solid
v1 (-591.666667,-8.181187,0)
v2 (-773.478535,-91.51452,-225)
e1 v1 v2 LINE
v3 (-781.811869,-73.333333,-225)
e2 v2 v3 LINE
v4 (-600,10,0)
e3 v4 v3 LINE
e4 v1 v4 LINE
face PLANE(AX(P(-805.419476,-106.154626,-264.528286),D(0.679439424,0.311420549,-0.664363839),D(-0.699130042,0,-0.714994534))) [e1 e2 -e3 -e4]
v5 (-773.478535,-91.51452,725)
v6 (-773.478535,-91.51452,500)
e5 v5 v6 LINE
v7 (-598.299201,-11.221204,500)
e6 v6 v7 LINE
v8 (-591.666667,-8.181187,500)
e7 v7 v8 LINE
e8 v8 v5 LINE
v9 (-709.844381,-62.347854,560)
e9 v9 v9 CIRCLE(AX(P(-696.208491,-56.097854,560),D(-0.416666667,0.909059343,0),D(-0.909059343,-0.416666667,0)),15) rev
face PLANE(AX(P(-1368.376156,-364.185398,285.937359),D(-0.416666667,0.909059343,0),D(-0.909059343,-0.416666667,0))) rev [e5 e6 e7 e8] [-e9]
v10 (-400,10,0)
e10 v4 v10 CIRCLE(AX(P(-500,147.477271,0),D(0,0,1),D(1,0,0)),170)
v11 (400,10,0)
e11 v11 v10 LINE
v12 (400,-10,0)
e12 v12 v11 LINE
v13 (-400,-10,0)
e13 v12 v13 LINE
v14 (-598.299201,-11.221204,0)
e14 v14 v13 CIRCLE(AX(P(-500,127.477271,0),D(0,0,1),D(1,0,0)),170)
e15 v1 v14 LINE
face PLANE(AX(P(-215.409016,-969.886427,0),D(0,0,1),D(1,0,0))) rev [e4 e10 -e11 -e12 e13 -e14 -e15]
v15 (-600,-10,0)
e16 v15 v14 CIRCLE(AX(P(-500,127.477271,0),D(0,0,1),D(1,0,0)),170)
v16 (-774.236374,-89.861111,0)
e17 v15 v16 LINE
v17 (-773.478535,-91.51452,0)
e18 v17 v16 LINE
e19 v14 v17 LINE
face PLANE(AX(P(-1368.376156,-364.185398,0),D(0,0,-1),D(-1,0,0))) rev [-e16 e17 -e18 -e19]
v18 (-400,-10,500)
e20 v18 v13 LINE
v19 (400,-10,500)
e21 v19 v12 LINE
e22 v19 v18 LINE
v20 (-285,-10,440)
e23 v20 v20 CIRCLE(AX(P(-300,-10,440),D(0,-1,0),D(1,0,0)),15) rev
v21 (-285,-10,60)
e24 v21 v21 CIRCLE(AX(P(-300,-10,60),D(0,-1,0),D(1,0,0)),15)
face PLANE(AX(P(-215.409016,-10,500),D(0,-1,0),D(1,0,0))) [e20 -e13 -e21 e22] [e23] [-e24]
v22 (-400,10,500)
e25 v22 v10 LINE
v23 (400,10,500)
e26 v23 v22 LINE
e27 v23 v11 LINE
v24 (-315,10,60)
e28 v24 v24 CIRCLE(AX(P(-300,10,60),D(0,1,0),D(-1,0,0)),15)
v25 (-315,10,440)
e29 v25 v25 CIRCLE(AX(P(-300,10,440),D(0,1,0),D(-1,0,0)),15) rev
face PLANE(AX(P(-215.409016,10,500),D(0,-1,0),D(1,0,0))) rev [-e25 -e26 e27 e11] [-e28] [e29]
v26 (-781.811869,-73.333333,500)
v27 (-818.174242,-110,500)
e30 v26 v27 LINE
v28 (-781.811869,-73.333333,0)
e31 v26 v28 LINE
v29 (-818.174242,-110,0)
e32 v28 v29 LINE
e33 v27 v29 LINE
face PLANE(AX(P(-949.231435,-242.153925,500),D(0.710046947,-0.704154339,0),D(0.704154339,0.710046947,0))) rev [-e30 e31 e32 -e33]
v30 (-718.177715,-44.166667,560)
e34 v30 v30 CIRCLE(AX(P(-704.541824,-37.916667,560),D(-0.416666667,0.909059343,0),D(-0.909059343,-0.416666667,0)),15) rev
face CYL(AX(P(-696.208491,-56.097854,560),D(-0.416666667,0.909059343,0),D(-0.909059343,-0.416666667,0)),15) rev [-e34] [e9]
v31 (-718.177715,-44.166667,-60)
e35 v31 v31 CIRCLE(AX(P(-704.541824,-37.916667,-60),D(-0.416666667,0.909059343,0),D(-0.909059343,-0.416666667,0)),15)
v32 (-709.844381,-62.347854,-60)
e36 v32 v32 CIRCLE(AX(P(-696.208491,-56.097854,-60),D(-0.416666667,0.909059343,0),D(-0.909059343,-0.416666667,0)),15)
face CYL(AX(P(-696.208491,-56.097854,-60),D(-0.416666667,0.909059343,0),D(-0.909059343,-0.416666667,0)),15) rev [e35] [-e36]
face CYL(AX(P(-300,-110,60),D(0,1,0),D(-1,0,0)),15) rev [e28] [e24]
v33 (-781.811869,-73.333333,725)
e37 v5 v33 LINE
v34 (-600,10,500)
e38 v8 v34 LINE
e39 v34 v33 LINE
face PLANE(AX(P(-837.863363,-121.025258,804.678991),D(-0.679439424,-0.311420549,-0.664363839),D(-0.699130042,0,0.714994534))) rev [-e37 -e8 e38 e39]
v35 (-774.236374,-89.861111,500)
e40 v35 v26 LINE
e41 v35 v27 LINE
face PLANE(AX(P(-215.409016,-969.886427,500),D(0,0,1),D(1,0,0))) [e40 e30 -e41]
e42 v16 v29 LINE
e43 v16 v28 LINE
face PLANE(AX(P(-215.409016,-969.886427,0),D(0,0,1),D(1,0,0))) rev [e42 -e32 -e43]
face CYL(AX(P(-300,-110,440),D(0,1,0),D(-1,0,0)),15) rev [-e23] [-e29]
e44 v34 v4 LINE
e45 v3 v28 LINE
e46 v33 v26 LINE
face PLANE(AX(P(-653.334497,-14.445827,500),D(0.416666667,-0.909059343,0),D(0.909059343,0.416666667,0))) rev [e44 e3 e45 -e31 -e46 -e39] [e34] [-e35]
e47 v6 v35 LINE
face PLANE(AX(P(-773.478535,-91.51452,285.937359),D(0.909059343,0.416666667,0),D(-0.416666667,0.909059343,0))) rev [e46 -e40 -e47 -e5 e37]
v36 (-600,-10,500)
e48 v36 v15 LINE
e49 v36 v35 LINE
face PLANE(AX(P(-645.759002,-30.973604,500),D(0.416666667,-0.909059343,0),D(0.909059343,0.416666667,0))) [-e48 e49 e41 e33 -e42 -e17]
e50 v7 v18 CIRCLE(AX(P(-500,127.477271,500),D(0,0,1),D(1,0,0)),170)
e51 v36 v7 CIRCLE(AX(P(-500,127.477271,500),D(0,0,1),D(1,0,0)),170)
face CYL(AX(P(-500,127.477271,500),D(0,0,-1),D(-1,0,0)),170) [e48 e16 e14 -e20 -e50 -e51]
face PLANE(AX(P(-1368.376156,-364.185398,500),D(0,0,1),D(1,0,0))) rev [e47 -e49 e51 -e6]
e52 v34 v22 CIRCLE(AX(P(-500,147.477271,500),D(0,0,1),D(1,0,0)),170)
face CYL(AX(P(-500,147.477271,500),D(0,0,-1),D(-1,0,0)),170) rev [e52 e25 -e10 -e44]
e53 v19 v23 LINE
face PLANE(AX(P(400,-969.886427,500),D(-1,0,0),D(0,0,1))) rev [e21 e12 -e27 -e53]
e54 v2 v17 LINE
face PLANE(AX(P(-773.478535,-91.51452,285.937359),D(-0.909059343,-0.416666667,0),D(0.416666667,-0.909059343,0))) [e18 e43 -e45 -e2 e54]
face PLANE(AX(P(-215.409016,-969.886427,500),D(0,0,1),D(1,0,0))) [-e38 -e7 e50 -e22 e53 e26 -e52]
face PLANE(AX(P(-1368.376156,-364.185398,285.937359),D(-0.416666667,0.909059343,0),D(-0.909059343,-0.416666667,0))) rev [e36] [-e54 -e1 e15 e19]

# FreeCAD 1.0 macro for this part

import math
import FreeCAD as App
import Part
import Sketcher

V = App.Vector


def add_polygon(sketch, points):
    """Adds a closed chain of lines whose ends are joined by coincident constraints."""
    first, n = sketch.GeometryCount, len(points)
    for a, b in zip(points, points[1:] + points[:1]):
        sketch.addGeometry(Part.LineSegment(App.Vector(*a, 0), App.Vector(*b, 0)), False)
    for i in range(n):
        sketch.addConstraint(Sketcher.Constraint("Coincident", first + i, 2, first + (i + 1) % n, 1))

doc = App.newDocument("Part")
body = doc.addObject("PartDesign::Body", "Body")

# Sketch on XY plane
sketch1 = body.newObject("Sketcher::SketchObject", "Sketch")
sketch1.AttachmentSupport = (doc.getObject("XY_Plane"), [""])
sketch1.MapMode = "FlatFace"
sketch1.addGeometry(Part.LineSegment(V(-400, -10, 0), V(400, -10, 0)), False)
sketch1.addGeometry(Part.LineSegment(V(400, -10, 0), V(400, 10, 0)), False)
sketch1.addGeometry(Part.LineSegment(V(400, 10, 0), V(-400, 10, 0)), False)
sketch1.addGeometry(Part.ArcOfCircle(Part.Circle(V(-500, 147.477271, 0), V(0, 0, 1), 170), math.radians(-126.031879), math.radians(-53.968121)), False)
sketch1.addGeometry(Part.LineSegment(V(-600, 10, 0), V(-781.811869, -73.333333, 0)), False)
sketch1.addGeometry(Part.LineSegment(V(-781.811869, -73.333333, 0), V(-818.174242, -110, 0)), False)
sketch1.addGeometry(Part.LineSegment(V(-818.174242, -110, 0), V(-600, -10, 0)), False)
sketch1.addGeometry(Part.ArcOfCircle(Part.Circle(V(-500, 127.477271, 0), V(0, 0, 1), 170), math.radians(-126.031879), math.radians(-53.968121)), False)
sketch1.addConstraint(Sketcher.Constraint("Coincident", 0, 2, 1, 1))
sketch1.addConstraint(Sketcher.Constraint("Coincident", 1, 2, 2, 1))
sketch1.addConstraint(Sketcher.Constraint("Coincident", 2, 2, 3, 2))
sketch1.addConstraint(Sketcher.Constraint("Coincident", 3, 1, 4, 1))
sketch1.addConstraint(Sketcher.Constraint("Coincident", 4, 2, 5, 1))
sketch1.addConstraint(Sketcher.Constraint("Coincident", 5, 2, 6, 1))
sketch1.addConstraint(Sketcher.Constraint("Coincident", 6, 2, 7, 1))
sketch1.addConstraint(Sketcher.Constraint("Coincident", 7, 2, 0, 1))
sketch1.addConstraint(Sketcher.Constraint("Horizontal", 0))
sketch1.addConstraint(Sketcher.Constraint("Vertical", 1))
sketch1.addConstraint(Sketcher.Constraint("Horizontal", 2))
sketch1.addConstraint(Sketcher.Constraint("Equal", 3, 7))
sketch1.addConstraint(Sketcher.Constraint("Symmetric", 0, 2, 2, 2, -1, 1))
sketch1.addConstraint(Sketcher.Constraint("Symmetric", 3, 1, 6, 2, -1))
sketch1.addConstraint(Sketcher.Constraint("Parallel", 4, 6))
sketch1.addConstraint(Sketcher.Constraint("Horizontal", 2, 2, 3, 1))
sketch1.addConstraint(Sketcher.Constraint("Vertical", 3, 3, 7, 3))
sketch1.addConstraint(Sketcher.Constraint("Radius", 3, 170.0))
sketch1.addConstraint(Sketcher.Constraint("DistanceX", 0, 1, 0, 2, 800.0))
sketch1.addConstraint(Sketcher.Constraint("DistanceY", 1, 1, 1, 2, 20.0))
sketch1.addConstraint(Sketcher.Constraint("Distance", 4, 200.0))
sketch1.addConstraint(Sketcher.Constraint("Distance", 6, 240.0))
sketch1.addConstraint(Sketcher.Constraint("DistanceX", 3, 3, -1, 1, 500.0))
sketch1.addConstraint(Sketcher.Constraint("DistanceY", 5, 2, -1, 1, 110.0))
pad1 = body.newObject("PartDesign::Pad", "Pad")
pad1.Profile = sketch1
pad1.Length = 500

# Sketch on an angled plane
sketch2 = body.newObject("Sketcher::SketchObject", "Sketch001")
sketch2.Placement = App.Placement(V(-107.954414, 235.528725, 0), App.Rotation(V(0.909059343, 0.416666667, 0), V(0, 0, -1), V(-0.416666667, 0.909059343, 0), "ZXY"))
add_polygon(sketch2, [(-741.268939, 0), (-541.268939, 0), (-741.268939, 225)])  # lines 0-2
sketch2.addGeometry(Part.Circle(V(-656.268939, 60, 0), V(0, 0, 1), 15), False)  # 3
add_polygon(sketch2, [(-741.268939, -725.000001), (-541.268939, -500), (-741.268939, -500)])  # lines 4-6
sketch2.addGeometry(Part.Circle(V(-656.268939, -560.000001, 0), V(0, 0, 1), 15), False)  # 7
sketch2.addConstraint(Sketcher.Constraint("Horizontal", 0))
sketch2.addConstraint(Sketcher.Constraint("Vertical", 2))
sketch2.addConstraint(Sketcher.Constraint("Horizontal", 5))
sketch2.addConstraint(Sketcher.Constraint("Vertical", 6))
sketch2.addConstraint(Sketcher.Constraint("Equal", 3, 7))
sketch2.addConstraint(Sketcher.Constraint("PointOnObject", 0, 2, -1))
sketch2.addConstraint(Sketcher.Constraint("Vertical", 3, 3, 7, 3))
sketch2.addConstraint(Sketcher.Constraint("Vertical", 0, 2, 4, 2))
sketch2.addConstraint(Sketcher.Constraint("Vertical", 2, 2, 5, 2))
sketch2.addConstraint(Sketcher.Constraint("Equal", 2, 6))
sketch2.addConstraint(Sketcher.Constraint("Diameter", 3, 30.0))
sketch2.addConstraint(Sketcher.Constraint("DistanceX", 0, 1, 0, 2, 200.0))
sketch2.addConstraint(Sketcher.Constraint("DistanceY", 2, 2, 2, 1, 225.0))
sketch2.addConstraint(Sketcher.Constraint("DistanceY", -1, 1, 3, 3, 60.0))
sketch2.addConstraint(Sketcher.Constraint("DistanceY", 7, 3, -1, 1, 560.000001))
sketch2.addConstraint(Sketcher.Constraint("DistanceY", 4, 2, -1, 1, 500.0))
sketch2.addConstraint(Sketcher.Constraint("DistanceX", 3, 3, 0, 2, 115.0))
sketch2.addConstraint(Sketcher.Constraint("DistanceX", 3, 3, -1, 1, 656.268939))
pad2 = body.newObject("PartDesign::Pad", "Pad001")
pad2.Profile = sketch2
pad2.Length = 20
pad2.Reversed = True

# Sketch on XZ plane
sketch3 = body.newObject("Sketcher::SketchObject", "Sketch002")
sketch3.AttachmentSupport = (doc.getObject("XZ_Plane"), [""])
sketch3.MapMode = "FlatFace"
sketch3.AttachmentOffset = App.Placement(V(0, 0, -10), App.Rotation())
sketch3.addGeometry(Part.Circle(V(-300, 440, 0), V(0, 0, 1), 15), False)
sketch3.addGeometry(Part.Circle(V(-300, 60, 0), V(0, 0, 1), 15), False)
sketch3.addConstraint(Sketcher.Constraint("Equal", 0, 1))
sketch3.addConstraint(Sketcher.Constraint("Vertical", 0, 3, 1, 3))
sketch3.addConstraint(Sketcher.Constraint("Diameter", 0, 30.0))
sketch3.addConstraint(Sketcher.Constraint("DistanceX", 0, 3, -1, 1, 300.0))
sketch3.addConstraint(Sketcher.Constraint("DistanceY", -1, 1, 0, 3, 440.0))
sketch3.addConstraint(Sketcher.Constraint("DistanceY", -1, 1, 1, 3, 60.0))
pocket1 = body.newObject("PartDesign::Pocket", "Pocket")
pocket1.Profile = sketch3
pocket1.Type = "ThroughAll"
pocket1.Reversed = True

doc.recompute()
